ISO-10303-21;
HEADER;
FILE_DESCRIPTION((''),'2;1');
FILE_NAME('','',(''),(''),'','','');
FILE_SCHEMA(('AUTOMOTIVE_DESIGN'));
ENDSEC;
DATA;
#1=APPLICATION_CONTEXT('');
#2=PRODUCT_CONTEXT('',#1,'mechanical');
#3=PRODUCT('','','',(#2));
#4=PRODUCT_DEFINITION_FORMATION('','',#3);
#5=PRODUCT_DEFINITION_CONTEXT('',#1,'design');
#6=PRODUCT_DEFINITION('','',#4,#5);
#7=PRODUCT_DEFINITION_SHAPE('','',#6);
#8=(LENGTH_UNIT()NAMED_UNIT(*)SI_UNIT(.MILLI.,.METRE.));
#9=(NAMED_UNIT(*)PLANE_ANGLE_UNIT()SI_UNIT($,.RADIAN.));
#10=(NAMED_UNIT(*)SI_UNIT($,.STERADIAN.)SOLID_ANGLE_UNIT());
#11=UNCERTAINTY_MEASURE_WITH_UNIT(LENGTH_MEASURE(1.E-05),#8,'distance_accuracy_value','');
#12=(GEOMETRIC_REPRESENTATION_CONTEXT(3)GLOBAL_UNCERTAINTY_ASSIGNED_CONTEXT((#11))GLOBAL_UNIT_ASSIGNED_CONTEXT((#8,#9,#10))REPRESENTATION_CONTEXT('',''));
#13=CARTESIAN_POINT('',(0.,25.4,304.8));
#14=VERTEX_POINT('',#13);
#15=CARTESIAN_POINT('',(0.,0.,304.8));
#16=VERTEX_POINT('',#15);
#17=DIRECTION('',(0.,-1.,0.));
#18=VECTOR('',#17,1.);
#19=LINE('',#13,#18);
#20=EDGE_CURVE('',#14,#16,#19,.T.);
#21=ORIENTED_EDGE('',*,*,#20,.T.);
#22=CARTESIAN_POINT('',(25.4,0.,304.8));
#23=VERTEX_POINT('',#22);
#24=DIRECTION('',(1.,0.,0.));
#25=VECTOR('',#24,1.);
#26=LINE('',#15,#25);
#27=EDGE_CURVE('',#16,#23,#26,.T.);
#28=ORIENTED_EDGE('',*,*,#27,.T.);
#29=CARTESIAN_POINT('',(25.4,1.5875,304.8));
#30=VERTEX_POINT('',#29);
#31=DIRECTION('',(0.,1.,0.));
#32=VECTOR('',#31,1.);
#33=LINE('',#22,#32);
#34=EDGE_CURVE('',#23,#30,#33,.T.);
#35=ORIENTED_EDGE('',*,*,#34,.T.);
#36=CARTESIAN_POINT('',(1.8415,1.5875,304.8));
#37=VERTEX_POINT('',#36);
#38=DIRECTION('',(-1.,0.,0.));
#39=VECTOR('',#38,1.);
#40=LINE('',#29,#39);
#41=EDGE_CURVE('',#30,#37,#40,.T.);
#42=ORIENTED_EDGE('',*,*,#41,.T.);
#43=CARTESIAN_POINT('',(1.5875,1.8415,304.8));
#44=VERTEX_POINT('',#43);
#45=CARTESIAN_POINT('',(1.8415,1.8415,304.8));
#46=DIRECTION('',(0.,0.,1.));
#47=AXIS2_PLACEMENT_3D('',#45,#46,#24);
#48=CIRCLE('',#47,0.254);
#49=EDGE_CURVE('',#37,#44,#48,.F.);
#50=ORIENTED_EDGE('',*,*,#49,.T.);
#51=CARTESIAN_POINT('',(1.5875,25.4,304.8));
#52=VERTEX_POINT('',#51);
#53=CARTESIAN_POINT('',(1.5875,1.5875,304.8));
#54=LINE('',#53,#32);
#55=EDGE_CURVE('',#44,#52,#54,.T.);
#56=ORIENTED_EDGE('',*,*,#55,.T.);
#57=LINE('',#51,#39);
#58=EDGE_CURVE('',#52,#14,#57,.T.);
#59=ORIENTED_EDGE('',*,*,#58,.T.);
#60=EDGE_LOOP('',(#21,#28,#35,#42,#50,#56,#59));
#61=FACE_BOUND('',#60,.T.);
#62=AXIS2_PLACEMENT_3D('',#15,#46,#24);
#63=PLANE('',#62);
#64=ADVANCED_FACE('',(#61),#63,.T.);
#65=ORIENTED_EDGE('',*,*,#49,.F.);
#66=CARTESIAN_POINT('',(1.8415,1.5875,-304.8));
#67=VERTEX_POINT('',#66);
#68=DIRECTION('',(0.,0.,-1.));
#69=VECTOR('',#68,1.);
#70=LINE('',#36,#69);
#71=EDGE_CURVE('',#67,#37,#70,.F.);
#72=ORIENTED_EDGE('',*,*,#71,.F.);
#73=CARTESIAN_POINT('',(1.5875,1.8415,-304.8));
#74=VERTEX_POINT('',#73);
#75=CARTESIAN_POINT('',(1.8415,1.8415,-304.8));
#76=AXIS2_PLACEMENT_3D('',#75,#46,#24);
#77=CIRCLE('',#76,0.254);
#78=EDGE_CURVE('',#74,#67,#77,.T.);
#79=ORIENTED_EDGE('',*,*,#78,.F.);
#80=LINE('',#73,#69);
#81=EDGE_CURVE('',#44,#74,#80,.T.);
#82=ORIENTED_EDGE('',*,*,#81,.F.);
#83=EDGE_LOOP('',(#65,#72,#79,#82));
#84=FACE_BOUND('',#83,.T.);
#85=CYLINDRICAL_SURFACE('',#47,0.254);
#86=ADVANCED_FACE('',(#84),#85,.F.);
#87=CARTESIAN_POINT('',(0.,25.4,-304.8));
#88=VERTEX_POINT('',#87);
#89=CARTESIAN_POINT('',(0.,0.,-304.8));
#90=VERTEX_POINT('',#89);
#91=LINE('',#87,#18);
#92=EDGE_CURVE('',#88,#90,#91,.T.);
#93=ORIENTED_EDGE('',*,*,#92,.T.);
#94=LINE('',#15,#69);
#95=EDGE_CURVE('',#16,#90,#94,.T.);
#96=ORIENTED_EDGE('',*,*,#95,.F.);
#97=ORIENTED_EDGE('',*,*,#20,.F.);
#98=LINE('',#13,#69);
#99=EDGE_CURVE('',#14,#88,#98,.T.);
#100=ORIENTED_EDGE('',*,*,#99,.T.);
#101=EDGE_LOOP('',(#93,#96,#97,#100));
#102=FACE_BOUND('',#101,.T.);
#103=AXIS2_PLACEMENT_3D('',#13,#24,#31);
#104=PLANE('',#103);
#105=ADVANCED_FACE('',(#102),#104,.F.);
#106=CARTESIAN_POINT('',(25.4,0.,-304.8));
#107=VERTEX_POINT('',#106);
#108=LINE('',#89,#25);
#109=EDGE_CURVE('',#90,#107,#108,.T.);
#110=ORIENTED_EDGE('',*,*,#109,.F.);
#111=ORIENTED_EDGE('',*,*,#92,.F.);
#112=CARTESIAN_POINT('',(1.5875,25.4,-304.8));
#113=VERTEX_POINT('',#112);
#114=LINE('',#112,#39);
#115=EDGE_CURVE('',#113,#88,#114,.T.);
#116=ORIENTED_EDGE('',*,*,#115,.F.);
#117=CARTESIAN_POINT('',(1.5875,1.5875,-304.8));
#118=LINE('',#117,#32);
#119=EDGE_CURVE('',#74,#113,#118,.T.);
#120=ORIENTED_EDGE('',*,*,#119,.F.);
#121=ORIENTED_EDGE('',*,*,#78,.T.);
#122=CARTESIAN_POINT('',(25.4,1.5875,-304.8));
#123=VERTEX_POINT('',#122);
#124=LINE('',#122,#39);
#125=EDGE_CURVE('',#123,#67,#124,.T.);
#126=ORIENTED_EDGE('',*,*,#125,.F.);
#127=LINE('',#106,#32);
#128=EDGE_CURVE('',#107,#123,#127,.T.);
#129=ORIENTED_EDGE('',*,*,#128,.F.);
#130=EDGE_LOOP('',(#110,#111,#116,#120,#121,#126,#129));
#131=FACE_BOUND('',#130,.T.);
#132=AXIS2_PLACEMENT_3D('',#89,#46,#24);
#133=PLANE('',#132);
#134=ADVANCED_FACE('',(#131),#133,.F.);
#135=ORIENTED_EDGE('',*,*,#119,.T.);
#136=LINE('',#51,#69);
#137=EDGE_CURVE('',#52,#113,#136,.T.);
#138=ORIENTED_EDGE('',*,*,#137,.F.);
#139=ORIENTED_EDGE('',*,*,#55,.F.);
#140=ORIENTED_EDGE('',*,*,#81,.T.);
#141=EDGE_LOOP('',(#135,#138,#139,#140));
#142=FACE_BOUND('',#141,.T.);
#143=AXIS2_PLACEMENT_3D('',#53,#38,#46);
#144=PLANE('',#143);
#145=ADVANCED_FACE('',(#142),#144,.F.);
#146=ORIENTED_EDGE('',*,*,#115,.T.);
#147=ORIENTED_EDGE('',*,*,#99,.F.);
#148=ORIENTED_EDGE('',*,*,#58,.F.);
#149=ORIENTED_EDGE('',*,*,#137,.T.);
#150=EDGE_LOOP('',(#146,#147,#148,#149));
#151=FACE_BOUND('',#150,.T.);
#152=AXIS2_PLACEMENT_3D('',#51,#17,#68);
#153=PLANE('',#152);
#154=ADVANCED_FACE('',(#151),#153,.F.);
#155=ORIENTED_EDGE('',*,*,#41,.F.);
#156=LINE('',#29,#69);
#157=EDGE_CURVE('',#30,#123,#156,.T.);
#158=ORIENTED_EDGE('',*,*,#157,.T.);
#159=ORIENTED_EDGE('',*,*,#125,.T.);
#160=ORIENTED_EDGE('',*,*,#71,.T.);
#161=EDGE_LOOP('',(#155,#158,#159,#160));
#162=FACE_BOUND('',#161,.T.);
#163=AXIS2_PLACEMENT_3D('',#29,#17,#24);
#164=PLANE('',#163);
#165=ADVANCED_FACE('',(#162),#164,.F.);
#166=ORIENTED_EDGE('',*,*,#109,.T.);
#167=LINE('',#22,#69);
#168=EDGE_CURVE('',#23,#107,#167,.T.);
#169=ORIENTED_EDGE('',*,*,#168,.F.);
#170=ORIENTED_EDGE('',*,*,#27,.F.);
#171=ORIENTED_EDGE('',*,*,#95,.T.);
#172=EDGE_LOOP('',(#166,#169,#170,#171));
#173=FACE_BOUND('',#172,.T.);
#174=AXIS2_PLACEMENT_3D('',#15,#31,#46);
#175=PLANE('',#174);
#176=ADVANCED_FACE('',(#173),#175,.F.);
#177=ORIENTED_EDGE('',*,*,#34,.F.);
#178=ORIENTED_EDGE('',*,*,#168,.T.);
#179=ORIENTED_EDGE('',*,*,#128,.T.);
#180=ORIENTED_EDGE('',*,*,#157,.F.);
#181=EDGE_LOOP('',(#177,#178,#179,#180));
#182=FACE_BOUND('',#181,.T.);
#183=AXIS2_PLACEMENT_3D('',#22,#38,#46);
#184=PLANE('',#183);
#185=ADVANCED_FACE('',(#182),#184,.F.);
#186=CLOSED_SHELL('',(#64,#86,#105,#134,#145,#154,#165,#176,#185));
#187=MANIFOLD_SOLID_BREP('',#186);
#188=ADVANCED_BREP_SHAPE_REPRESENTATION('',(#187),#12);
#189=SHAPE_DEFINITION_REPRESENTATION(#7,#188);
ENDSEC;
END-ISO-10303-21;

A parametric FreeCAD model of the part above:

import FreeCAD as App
import Part
import Sketcher

V = App.Vector
Q = App.Units.Quantity


def edges_at(feature, points):
    """Names of the edges that pass closest to the given points."""
    edges = feature.Shape.Edges
    near = lambda p: min(range(len(edges)), key=lambda i: edges[i].distToShape(Part.Vertex(*p))[0])
    return sorted({f"Edge{near(p) + 1}" for p in points})

doc = App.newDocument("Part")
body = doc.addObject("PartDesign::Body", "Body")

# Sketch on XY plane
sketch1 = doc.addObject("Sketcher::SketchObject", "Sketch")
body.addObject(sketch1)
sketch1.AttachmentSupport = (doc.XY_Plane, [""])
sketch1.MapMode = "FlatFace"
sketch1.addGeometry([
    Part.LineSegment(V(1.5875, 25.4, 0), V(0, 25.4, 0)),  # 0
    Part.LineSegment(V(0, 25.4, 0), V(0, 0, 0)),  # 1
    Part.LineSegment(V(0, 0, 0), V(25.4, 0, 0)),  # 2
    Part.LineSegment(V(25.4, 0, 0), V(25.4, 1.5875, 0)),  # 3
    Part.LineSegment(V(25.4, 1.5875, 0), V(1.5875, 1.5875, 0)),  # 4
    Part.LineSegment(V(1.5875, 1.5875, 0), V(1.5875, 25.4, 0)),  # 5
], False)
sketch1.addConstraint([
    Sketcher.Constraint("Coincident", 0, 2, 1, 1),
    Sketcher.Constraint("Coincident", 1, 2, 2, 1),
    Sketcher.Constraint("Coincident", 2, 2, 3, 1),
    Sketcher.Constraint("Coincident", 3, 2, 4, 1),
    Sketcher.Constraint("Coincident", 4, 2, 5, 1),
    Sketcher.Constraint("Coincident", 5, 2, 0, 1),
    Sketcher.Constraint("Horizontal", 0),
    Sketcher.Constraint("Vertical", 1),
    Sketcher.Constraint("Horizontal", 2),
    Sketcher.Constraint("Vertical", 3),
    Sketcher.Constraint("Horizontal", 4),
    Sketcher.Constraint("Vertical", 5),
    Sketcher.Constraint("Coincident", 1, 2, -1, 1),
    Sketcher.Constraint("Equal", 2, 1),
    Sketcher.Constraint("Equal", 0, 3),
    Sketcher.Constraint("DistanceX", 2, 1, 2, 2, Q("1 in")),
    Sketcher.Constraint("DistanceX", 0, 2, 0, 1, Q("0.0625 in")),
])
pad1 = doc.addObject("PartDesign::Pad", "Pad")
body.addObject(pad1)
pad1.Profile = sketch1
pad1.Length = Q("24 in")
pad1.Midplane = True
doc.recompute()

fillet = doc.addObject("PartDesign::Fillet", "Fillet")
body.addObject(fillet)
fillet.Base = (pad1, edges_at(pad1, [(1.587, 1.587, 0)]))
fillet.Radius = Q("0.01 in")

doc.recompute()
